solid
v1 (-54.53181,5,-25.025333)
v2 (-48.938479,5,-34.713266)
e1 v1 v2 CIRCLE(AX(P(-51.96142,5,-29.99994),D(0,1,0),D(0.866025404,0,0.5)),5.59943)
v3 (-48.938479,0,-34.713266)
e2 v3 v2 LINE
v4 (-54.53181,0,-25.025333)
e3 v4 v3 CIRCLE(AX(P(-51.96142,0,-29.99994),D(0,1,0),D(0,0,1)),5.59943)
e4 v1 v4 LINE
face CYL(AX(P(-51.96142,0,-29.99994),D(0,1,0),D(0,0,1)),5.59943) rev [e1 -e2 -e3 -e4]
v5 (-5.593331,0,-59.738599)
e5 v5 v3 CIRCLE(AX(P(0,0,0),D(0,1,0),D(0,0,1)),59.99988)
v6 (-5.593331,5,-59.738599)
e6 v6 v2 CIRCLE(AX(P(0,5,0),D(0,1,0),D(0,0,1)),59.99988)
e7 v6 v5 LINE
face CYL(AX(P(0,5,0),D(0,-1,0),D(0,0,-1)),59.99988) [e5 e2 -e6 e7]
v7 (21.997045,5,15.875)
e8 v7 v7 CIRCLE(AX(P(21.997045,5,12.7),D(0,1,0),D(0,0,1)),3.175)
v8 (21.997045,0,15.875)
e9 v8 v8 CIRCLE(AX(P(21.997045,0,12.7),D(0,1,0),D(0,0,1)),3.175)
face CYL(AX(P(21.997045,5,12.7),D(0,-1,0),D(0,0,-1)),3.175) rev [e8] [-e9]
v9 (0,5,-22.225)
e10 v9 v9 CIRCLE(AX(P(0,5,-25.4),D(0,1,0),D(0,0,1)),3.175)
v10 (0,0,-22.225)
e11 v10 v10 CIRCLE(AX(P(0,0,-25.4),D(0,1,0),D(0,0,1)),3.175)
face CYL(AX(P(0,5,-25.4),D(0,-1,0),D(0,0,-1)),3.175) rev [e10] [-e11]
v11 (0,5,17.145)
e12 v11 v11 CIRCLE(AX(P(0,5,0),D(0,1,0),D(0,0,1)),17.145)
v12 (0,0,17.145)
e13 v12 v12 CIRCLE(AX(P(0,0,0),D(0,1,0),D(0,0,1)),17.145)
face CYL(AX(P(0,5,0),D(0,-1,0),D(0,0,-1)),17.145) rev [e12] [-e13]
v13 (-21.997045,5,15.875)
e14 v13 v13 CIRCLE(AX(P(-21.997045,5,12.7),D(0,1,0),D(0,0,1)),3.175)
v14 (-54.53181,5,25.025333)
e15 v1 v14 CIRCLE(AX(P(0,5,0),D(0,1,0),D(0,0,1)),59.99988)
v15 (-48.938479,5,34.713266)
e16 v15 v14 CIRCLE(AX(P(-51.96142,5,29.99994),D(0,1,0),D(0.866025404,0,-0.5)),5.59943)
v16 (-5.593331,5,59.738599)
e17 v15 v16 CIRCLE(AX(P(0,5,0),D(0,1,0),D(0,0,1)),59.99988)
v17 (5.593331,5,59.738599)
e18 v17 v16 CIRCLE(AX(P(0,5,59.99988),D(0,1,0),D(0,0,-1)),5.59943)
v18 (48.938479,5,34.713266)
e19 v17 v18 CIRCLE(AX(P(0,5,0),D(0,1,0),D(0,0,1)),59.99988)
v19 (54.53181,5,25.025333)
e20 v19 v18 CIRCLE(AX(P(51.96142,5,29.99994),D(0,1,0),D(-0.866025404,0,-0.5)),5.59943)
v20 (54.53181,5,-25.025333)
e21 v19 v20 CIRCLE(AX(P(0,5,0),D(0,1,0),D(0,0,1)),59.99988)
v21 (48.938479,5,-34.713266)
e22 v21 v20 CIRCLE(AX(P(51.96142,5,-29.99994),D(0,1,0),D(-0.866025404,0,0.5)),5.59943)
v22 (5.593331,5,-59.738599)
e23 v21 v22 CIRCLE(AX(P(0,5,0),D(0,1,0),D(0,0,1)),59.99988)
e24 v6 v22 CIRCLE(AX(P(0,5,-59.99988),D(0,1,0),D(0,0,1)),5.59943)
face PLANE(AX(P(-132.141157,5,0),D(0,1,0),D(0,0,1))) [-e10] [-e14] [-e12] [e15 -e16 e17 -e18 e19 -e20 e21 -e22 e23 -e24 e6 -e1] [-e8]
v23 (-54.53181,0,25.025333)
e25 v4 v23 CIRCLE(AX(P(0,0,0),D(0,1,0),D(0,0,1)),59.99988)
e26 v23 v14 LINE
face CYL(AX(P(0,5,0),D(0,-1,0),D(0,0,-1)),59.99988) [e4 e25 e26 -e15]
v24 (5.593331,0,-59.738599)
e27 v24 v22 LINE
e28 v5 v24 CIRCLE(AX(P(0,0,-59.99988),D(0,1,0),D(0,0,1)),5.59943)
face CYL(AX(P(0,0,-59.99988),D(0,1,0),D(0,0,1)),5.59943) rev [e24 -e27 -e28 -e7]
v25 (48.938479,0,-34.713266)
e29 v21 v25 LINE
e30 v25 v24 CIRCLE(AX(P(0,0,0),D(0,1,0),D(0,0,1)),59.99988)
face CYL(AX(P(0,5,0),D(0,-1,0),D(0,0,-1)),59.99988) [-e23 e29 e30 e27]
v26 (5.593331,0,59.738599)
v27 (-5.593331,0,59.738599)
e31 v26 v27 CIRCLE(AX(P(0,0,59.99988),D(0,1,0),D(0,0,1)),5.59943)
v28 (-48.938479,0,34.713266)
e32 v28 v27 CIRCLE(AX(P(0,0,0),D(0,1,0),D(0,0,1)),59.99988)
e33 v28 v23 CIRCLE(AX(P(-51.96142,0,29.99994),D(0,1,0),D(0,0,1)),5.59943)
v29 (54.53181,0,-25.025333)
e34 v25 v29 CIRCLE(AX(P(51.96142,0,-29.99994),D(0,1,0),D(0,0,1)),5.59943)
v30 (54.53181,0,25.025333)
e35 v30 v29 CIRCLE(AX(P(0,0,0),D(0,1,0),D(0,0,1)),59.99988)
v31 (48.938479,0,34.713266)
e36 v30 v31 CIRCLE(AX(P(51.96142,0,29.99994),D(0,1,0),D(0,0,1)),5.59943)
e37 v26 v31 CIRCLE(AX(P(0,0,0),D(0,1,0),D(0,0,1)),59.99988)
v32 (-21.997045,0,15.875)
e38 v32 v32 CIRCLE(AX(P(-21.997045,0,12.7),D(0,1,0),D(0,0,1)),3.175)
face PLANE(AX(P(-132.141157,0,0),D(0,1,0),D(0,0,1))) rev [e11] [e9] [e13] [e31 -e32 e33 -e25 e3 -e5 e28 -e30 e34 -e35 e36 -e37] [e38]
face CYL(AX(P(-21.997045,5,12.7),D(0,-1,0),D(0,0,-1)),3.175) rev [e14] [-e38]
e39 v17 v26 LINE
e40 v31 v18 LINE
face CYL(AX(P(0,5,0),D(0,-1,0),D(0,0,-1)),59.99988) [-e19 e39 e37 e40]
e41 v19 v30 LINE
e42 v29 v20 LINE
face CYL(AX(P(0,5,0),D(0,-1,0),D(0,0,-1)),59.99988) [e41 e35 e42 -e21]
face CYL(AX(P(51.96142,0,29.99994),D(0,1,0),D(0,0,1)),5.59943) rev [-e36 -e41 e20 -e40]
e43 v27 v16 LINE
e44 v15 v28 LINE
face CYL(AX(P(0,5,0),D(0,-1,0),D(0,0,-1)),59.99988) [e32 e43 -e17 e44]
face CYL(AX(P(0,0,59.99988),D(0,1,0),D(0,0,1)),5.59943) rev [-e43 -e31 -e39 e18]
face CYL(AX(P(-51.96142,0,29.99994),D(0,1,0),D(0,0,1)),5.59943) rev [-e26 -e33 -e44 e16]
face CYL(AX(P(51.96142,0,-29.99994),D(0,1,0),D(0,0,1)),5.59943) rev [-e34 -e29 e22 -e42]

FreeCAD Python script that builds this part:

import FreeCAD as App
import Part
import Sketcher
from FreeCAD import Vector

doc = App.newDocument("Part")
params = doc.addObject("Spreadsheet::Sheet", "Params")
for row, (alias, value) in enumerate([
    ("sketch1_diameter", "6.35 mm"),
    ("sketch1_diameter2", "34.29 mm"),
    ("pad1_length", "5 mm"),
], start=1):
    params.set(f"A{row}", alias)
    params.set(f"B{row}", "=" + value)
    params.setAlias(f"B{row}", alias)

body = doc.addObject("PartDesign::Body", "Body")

# Sketch on XZ plane
sketch1 = doc.addObject("Sketcher::SketchObject", "Sketch")
body.addObject(sketch1)
sketch1.AttachmentSupport = (doc.XZ_Plane, [""])
sketch1.MapMode = "FlatFace"
sketch1.addGeometry(Part.Circle(Vector(0, 0, 0), Vector(0, 0, 1), 60), False)
sketch1.addGeometry(Part.Circle(Vector(-22, 12.7, 0), Vector(0, 0, 1), 3.2), False)
sketch1.addGeometry(Part.Circle(Vector(22, 12.7, 0), Vector(0, 0, 1), 3.2), False)
sketch1.addGeometry(Part.Circle(Vector(0, 0, 0), Vector(0, 0, 1), 17.1), False)
sketch1.addGeometry(Part.Circle(Vector(0, -25.4, 0), Vector(0, 0, 1), 3.2), False)
sketch1.addConstraint(Sketcher.Constraint("Coincident", 0, 3, -1, 1))
sketch1.addConstraint(Sketcher.Constraint("Coincident", 3, 3, -1, 1))
sketch1.addConstraint(Sketcher.Constraint("Equal", 1, 2))
sketch1.addConstraint(Sketcher.Constraint("Equal", 2, 4))
sketch1.addConstraint(Sketcher.Constraint("Symmetric", 1, 3, 2, 3, -2))
sketch1.addConstraint(Sketcher.Constraint("PointOnObject", 4, 3, -2))
sketch1.addConstraint(Sketcher.Constraint("Diameter", 1, 6.35))
sketch1.addConstraint(Sketcher.Constraint("Diameter", 3, 34.29))
sketch1.addConstraint(Sketcher.Constraint("DistanceY", -1, 1, 1, 3, 12.7))
sketch1.addConstraint(Sketcher.Constraint("DistanceY", 4, 3, -1, 1, 25.4))
sketch1.addConstraint(Sketcher.Constraint("Diameter", 0, 119.99976))
sketch1.addConstraint(Sketcher.Constraint("DistanceX", 1, 3, 2, 3, 43.994091))
sketch1.setExpression("Constraints[6]", "Params.sketch1_diameter")
sketch1.setExpression("Constraints[7]", "Params.sketch1_diameter2")
pad1 = doc.addObject("PartDesign::Pad", "Pad")
body.addObject(pad1)
pad1.Profile = sketch1
pad1.setExpression("Length", "Params.pad1_length")
pad1.Reversed = True

# Sketch on XZ plane
sketch2 = doc.addObject("Sketcher::SketchObject", "Sketch001")
body.addObject(sketch2)
sketch2.AttachmentSupport = (doc.XZ_Plane, [""])
sketch2.MapMode = "FlatFace"
sketch2.AttachmentOffset = App.Placement(Vector(0, 0, -5), App.Rotation())
sketch2.addGeometry(Part.Circle(Vector(0, -60, 0), Vector(0, 0, 1), 6), False)
sketch2.addConstraint(Sketcher.Constraint("PointOnObject", 0, 3, -2))
sketch2.addConstraint(Sketcher.Constraint("Diameter", 0, 11.19886))
sketch2.addConstraint(Sketcher.Constraint("DistanceY", 0, 3, -1, 1, 59.99988))
pocket1 = doc.addObject("PartDesign::Pocket", "Pocket")
body.addObject(pocket1)
pocket1.Profile = sketch2
pocket1.Type = "ThroughAll"
pocket1.Reversed = True
doc.recompute()

polarpattern = doc.addObject("PartDesign::PolarPattern", "PolarPattern")
body.addObject(polarpattern)
polarpattern.Originals = [pocket1]
polarpattern.Axis = (doc.Y_Axis, [""])
polarpattern.Angle = 360
polarpattern.Occurrences = 6
body.Tip = polarpattern

doc.recompute()
